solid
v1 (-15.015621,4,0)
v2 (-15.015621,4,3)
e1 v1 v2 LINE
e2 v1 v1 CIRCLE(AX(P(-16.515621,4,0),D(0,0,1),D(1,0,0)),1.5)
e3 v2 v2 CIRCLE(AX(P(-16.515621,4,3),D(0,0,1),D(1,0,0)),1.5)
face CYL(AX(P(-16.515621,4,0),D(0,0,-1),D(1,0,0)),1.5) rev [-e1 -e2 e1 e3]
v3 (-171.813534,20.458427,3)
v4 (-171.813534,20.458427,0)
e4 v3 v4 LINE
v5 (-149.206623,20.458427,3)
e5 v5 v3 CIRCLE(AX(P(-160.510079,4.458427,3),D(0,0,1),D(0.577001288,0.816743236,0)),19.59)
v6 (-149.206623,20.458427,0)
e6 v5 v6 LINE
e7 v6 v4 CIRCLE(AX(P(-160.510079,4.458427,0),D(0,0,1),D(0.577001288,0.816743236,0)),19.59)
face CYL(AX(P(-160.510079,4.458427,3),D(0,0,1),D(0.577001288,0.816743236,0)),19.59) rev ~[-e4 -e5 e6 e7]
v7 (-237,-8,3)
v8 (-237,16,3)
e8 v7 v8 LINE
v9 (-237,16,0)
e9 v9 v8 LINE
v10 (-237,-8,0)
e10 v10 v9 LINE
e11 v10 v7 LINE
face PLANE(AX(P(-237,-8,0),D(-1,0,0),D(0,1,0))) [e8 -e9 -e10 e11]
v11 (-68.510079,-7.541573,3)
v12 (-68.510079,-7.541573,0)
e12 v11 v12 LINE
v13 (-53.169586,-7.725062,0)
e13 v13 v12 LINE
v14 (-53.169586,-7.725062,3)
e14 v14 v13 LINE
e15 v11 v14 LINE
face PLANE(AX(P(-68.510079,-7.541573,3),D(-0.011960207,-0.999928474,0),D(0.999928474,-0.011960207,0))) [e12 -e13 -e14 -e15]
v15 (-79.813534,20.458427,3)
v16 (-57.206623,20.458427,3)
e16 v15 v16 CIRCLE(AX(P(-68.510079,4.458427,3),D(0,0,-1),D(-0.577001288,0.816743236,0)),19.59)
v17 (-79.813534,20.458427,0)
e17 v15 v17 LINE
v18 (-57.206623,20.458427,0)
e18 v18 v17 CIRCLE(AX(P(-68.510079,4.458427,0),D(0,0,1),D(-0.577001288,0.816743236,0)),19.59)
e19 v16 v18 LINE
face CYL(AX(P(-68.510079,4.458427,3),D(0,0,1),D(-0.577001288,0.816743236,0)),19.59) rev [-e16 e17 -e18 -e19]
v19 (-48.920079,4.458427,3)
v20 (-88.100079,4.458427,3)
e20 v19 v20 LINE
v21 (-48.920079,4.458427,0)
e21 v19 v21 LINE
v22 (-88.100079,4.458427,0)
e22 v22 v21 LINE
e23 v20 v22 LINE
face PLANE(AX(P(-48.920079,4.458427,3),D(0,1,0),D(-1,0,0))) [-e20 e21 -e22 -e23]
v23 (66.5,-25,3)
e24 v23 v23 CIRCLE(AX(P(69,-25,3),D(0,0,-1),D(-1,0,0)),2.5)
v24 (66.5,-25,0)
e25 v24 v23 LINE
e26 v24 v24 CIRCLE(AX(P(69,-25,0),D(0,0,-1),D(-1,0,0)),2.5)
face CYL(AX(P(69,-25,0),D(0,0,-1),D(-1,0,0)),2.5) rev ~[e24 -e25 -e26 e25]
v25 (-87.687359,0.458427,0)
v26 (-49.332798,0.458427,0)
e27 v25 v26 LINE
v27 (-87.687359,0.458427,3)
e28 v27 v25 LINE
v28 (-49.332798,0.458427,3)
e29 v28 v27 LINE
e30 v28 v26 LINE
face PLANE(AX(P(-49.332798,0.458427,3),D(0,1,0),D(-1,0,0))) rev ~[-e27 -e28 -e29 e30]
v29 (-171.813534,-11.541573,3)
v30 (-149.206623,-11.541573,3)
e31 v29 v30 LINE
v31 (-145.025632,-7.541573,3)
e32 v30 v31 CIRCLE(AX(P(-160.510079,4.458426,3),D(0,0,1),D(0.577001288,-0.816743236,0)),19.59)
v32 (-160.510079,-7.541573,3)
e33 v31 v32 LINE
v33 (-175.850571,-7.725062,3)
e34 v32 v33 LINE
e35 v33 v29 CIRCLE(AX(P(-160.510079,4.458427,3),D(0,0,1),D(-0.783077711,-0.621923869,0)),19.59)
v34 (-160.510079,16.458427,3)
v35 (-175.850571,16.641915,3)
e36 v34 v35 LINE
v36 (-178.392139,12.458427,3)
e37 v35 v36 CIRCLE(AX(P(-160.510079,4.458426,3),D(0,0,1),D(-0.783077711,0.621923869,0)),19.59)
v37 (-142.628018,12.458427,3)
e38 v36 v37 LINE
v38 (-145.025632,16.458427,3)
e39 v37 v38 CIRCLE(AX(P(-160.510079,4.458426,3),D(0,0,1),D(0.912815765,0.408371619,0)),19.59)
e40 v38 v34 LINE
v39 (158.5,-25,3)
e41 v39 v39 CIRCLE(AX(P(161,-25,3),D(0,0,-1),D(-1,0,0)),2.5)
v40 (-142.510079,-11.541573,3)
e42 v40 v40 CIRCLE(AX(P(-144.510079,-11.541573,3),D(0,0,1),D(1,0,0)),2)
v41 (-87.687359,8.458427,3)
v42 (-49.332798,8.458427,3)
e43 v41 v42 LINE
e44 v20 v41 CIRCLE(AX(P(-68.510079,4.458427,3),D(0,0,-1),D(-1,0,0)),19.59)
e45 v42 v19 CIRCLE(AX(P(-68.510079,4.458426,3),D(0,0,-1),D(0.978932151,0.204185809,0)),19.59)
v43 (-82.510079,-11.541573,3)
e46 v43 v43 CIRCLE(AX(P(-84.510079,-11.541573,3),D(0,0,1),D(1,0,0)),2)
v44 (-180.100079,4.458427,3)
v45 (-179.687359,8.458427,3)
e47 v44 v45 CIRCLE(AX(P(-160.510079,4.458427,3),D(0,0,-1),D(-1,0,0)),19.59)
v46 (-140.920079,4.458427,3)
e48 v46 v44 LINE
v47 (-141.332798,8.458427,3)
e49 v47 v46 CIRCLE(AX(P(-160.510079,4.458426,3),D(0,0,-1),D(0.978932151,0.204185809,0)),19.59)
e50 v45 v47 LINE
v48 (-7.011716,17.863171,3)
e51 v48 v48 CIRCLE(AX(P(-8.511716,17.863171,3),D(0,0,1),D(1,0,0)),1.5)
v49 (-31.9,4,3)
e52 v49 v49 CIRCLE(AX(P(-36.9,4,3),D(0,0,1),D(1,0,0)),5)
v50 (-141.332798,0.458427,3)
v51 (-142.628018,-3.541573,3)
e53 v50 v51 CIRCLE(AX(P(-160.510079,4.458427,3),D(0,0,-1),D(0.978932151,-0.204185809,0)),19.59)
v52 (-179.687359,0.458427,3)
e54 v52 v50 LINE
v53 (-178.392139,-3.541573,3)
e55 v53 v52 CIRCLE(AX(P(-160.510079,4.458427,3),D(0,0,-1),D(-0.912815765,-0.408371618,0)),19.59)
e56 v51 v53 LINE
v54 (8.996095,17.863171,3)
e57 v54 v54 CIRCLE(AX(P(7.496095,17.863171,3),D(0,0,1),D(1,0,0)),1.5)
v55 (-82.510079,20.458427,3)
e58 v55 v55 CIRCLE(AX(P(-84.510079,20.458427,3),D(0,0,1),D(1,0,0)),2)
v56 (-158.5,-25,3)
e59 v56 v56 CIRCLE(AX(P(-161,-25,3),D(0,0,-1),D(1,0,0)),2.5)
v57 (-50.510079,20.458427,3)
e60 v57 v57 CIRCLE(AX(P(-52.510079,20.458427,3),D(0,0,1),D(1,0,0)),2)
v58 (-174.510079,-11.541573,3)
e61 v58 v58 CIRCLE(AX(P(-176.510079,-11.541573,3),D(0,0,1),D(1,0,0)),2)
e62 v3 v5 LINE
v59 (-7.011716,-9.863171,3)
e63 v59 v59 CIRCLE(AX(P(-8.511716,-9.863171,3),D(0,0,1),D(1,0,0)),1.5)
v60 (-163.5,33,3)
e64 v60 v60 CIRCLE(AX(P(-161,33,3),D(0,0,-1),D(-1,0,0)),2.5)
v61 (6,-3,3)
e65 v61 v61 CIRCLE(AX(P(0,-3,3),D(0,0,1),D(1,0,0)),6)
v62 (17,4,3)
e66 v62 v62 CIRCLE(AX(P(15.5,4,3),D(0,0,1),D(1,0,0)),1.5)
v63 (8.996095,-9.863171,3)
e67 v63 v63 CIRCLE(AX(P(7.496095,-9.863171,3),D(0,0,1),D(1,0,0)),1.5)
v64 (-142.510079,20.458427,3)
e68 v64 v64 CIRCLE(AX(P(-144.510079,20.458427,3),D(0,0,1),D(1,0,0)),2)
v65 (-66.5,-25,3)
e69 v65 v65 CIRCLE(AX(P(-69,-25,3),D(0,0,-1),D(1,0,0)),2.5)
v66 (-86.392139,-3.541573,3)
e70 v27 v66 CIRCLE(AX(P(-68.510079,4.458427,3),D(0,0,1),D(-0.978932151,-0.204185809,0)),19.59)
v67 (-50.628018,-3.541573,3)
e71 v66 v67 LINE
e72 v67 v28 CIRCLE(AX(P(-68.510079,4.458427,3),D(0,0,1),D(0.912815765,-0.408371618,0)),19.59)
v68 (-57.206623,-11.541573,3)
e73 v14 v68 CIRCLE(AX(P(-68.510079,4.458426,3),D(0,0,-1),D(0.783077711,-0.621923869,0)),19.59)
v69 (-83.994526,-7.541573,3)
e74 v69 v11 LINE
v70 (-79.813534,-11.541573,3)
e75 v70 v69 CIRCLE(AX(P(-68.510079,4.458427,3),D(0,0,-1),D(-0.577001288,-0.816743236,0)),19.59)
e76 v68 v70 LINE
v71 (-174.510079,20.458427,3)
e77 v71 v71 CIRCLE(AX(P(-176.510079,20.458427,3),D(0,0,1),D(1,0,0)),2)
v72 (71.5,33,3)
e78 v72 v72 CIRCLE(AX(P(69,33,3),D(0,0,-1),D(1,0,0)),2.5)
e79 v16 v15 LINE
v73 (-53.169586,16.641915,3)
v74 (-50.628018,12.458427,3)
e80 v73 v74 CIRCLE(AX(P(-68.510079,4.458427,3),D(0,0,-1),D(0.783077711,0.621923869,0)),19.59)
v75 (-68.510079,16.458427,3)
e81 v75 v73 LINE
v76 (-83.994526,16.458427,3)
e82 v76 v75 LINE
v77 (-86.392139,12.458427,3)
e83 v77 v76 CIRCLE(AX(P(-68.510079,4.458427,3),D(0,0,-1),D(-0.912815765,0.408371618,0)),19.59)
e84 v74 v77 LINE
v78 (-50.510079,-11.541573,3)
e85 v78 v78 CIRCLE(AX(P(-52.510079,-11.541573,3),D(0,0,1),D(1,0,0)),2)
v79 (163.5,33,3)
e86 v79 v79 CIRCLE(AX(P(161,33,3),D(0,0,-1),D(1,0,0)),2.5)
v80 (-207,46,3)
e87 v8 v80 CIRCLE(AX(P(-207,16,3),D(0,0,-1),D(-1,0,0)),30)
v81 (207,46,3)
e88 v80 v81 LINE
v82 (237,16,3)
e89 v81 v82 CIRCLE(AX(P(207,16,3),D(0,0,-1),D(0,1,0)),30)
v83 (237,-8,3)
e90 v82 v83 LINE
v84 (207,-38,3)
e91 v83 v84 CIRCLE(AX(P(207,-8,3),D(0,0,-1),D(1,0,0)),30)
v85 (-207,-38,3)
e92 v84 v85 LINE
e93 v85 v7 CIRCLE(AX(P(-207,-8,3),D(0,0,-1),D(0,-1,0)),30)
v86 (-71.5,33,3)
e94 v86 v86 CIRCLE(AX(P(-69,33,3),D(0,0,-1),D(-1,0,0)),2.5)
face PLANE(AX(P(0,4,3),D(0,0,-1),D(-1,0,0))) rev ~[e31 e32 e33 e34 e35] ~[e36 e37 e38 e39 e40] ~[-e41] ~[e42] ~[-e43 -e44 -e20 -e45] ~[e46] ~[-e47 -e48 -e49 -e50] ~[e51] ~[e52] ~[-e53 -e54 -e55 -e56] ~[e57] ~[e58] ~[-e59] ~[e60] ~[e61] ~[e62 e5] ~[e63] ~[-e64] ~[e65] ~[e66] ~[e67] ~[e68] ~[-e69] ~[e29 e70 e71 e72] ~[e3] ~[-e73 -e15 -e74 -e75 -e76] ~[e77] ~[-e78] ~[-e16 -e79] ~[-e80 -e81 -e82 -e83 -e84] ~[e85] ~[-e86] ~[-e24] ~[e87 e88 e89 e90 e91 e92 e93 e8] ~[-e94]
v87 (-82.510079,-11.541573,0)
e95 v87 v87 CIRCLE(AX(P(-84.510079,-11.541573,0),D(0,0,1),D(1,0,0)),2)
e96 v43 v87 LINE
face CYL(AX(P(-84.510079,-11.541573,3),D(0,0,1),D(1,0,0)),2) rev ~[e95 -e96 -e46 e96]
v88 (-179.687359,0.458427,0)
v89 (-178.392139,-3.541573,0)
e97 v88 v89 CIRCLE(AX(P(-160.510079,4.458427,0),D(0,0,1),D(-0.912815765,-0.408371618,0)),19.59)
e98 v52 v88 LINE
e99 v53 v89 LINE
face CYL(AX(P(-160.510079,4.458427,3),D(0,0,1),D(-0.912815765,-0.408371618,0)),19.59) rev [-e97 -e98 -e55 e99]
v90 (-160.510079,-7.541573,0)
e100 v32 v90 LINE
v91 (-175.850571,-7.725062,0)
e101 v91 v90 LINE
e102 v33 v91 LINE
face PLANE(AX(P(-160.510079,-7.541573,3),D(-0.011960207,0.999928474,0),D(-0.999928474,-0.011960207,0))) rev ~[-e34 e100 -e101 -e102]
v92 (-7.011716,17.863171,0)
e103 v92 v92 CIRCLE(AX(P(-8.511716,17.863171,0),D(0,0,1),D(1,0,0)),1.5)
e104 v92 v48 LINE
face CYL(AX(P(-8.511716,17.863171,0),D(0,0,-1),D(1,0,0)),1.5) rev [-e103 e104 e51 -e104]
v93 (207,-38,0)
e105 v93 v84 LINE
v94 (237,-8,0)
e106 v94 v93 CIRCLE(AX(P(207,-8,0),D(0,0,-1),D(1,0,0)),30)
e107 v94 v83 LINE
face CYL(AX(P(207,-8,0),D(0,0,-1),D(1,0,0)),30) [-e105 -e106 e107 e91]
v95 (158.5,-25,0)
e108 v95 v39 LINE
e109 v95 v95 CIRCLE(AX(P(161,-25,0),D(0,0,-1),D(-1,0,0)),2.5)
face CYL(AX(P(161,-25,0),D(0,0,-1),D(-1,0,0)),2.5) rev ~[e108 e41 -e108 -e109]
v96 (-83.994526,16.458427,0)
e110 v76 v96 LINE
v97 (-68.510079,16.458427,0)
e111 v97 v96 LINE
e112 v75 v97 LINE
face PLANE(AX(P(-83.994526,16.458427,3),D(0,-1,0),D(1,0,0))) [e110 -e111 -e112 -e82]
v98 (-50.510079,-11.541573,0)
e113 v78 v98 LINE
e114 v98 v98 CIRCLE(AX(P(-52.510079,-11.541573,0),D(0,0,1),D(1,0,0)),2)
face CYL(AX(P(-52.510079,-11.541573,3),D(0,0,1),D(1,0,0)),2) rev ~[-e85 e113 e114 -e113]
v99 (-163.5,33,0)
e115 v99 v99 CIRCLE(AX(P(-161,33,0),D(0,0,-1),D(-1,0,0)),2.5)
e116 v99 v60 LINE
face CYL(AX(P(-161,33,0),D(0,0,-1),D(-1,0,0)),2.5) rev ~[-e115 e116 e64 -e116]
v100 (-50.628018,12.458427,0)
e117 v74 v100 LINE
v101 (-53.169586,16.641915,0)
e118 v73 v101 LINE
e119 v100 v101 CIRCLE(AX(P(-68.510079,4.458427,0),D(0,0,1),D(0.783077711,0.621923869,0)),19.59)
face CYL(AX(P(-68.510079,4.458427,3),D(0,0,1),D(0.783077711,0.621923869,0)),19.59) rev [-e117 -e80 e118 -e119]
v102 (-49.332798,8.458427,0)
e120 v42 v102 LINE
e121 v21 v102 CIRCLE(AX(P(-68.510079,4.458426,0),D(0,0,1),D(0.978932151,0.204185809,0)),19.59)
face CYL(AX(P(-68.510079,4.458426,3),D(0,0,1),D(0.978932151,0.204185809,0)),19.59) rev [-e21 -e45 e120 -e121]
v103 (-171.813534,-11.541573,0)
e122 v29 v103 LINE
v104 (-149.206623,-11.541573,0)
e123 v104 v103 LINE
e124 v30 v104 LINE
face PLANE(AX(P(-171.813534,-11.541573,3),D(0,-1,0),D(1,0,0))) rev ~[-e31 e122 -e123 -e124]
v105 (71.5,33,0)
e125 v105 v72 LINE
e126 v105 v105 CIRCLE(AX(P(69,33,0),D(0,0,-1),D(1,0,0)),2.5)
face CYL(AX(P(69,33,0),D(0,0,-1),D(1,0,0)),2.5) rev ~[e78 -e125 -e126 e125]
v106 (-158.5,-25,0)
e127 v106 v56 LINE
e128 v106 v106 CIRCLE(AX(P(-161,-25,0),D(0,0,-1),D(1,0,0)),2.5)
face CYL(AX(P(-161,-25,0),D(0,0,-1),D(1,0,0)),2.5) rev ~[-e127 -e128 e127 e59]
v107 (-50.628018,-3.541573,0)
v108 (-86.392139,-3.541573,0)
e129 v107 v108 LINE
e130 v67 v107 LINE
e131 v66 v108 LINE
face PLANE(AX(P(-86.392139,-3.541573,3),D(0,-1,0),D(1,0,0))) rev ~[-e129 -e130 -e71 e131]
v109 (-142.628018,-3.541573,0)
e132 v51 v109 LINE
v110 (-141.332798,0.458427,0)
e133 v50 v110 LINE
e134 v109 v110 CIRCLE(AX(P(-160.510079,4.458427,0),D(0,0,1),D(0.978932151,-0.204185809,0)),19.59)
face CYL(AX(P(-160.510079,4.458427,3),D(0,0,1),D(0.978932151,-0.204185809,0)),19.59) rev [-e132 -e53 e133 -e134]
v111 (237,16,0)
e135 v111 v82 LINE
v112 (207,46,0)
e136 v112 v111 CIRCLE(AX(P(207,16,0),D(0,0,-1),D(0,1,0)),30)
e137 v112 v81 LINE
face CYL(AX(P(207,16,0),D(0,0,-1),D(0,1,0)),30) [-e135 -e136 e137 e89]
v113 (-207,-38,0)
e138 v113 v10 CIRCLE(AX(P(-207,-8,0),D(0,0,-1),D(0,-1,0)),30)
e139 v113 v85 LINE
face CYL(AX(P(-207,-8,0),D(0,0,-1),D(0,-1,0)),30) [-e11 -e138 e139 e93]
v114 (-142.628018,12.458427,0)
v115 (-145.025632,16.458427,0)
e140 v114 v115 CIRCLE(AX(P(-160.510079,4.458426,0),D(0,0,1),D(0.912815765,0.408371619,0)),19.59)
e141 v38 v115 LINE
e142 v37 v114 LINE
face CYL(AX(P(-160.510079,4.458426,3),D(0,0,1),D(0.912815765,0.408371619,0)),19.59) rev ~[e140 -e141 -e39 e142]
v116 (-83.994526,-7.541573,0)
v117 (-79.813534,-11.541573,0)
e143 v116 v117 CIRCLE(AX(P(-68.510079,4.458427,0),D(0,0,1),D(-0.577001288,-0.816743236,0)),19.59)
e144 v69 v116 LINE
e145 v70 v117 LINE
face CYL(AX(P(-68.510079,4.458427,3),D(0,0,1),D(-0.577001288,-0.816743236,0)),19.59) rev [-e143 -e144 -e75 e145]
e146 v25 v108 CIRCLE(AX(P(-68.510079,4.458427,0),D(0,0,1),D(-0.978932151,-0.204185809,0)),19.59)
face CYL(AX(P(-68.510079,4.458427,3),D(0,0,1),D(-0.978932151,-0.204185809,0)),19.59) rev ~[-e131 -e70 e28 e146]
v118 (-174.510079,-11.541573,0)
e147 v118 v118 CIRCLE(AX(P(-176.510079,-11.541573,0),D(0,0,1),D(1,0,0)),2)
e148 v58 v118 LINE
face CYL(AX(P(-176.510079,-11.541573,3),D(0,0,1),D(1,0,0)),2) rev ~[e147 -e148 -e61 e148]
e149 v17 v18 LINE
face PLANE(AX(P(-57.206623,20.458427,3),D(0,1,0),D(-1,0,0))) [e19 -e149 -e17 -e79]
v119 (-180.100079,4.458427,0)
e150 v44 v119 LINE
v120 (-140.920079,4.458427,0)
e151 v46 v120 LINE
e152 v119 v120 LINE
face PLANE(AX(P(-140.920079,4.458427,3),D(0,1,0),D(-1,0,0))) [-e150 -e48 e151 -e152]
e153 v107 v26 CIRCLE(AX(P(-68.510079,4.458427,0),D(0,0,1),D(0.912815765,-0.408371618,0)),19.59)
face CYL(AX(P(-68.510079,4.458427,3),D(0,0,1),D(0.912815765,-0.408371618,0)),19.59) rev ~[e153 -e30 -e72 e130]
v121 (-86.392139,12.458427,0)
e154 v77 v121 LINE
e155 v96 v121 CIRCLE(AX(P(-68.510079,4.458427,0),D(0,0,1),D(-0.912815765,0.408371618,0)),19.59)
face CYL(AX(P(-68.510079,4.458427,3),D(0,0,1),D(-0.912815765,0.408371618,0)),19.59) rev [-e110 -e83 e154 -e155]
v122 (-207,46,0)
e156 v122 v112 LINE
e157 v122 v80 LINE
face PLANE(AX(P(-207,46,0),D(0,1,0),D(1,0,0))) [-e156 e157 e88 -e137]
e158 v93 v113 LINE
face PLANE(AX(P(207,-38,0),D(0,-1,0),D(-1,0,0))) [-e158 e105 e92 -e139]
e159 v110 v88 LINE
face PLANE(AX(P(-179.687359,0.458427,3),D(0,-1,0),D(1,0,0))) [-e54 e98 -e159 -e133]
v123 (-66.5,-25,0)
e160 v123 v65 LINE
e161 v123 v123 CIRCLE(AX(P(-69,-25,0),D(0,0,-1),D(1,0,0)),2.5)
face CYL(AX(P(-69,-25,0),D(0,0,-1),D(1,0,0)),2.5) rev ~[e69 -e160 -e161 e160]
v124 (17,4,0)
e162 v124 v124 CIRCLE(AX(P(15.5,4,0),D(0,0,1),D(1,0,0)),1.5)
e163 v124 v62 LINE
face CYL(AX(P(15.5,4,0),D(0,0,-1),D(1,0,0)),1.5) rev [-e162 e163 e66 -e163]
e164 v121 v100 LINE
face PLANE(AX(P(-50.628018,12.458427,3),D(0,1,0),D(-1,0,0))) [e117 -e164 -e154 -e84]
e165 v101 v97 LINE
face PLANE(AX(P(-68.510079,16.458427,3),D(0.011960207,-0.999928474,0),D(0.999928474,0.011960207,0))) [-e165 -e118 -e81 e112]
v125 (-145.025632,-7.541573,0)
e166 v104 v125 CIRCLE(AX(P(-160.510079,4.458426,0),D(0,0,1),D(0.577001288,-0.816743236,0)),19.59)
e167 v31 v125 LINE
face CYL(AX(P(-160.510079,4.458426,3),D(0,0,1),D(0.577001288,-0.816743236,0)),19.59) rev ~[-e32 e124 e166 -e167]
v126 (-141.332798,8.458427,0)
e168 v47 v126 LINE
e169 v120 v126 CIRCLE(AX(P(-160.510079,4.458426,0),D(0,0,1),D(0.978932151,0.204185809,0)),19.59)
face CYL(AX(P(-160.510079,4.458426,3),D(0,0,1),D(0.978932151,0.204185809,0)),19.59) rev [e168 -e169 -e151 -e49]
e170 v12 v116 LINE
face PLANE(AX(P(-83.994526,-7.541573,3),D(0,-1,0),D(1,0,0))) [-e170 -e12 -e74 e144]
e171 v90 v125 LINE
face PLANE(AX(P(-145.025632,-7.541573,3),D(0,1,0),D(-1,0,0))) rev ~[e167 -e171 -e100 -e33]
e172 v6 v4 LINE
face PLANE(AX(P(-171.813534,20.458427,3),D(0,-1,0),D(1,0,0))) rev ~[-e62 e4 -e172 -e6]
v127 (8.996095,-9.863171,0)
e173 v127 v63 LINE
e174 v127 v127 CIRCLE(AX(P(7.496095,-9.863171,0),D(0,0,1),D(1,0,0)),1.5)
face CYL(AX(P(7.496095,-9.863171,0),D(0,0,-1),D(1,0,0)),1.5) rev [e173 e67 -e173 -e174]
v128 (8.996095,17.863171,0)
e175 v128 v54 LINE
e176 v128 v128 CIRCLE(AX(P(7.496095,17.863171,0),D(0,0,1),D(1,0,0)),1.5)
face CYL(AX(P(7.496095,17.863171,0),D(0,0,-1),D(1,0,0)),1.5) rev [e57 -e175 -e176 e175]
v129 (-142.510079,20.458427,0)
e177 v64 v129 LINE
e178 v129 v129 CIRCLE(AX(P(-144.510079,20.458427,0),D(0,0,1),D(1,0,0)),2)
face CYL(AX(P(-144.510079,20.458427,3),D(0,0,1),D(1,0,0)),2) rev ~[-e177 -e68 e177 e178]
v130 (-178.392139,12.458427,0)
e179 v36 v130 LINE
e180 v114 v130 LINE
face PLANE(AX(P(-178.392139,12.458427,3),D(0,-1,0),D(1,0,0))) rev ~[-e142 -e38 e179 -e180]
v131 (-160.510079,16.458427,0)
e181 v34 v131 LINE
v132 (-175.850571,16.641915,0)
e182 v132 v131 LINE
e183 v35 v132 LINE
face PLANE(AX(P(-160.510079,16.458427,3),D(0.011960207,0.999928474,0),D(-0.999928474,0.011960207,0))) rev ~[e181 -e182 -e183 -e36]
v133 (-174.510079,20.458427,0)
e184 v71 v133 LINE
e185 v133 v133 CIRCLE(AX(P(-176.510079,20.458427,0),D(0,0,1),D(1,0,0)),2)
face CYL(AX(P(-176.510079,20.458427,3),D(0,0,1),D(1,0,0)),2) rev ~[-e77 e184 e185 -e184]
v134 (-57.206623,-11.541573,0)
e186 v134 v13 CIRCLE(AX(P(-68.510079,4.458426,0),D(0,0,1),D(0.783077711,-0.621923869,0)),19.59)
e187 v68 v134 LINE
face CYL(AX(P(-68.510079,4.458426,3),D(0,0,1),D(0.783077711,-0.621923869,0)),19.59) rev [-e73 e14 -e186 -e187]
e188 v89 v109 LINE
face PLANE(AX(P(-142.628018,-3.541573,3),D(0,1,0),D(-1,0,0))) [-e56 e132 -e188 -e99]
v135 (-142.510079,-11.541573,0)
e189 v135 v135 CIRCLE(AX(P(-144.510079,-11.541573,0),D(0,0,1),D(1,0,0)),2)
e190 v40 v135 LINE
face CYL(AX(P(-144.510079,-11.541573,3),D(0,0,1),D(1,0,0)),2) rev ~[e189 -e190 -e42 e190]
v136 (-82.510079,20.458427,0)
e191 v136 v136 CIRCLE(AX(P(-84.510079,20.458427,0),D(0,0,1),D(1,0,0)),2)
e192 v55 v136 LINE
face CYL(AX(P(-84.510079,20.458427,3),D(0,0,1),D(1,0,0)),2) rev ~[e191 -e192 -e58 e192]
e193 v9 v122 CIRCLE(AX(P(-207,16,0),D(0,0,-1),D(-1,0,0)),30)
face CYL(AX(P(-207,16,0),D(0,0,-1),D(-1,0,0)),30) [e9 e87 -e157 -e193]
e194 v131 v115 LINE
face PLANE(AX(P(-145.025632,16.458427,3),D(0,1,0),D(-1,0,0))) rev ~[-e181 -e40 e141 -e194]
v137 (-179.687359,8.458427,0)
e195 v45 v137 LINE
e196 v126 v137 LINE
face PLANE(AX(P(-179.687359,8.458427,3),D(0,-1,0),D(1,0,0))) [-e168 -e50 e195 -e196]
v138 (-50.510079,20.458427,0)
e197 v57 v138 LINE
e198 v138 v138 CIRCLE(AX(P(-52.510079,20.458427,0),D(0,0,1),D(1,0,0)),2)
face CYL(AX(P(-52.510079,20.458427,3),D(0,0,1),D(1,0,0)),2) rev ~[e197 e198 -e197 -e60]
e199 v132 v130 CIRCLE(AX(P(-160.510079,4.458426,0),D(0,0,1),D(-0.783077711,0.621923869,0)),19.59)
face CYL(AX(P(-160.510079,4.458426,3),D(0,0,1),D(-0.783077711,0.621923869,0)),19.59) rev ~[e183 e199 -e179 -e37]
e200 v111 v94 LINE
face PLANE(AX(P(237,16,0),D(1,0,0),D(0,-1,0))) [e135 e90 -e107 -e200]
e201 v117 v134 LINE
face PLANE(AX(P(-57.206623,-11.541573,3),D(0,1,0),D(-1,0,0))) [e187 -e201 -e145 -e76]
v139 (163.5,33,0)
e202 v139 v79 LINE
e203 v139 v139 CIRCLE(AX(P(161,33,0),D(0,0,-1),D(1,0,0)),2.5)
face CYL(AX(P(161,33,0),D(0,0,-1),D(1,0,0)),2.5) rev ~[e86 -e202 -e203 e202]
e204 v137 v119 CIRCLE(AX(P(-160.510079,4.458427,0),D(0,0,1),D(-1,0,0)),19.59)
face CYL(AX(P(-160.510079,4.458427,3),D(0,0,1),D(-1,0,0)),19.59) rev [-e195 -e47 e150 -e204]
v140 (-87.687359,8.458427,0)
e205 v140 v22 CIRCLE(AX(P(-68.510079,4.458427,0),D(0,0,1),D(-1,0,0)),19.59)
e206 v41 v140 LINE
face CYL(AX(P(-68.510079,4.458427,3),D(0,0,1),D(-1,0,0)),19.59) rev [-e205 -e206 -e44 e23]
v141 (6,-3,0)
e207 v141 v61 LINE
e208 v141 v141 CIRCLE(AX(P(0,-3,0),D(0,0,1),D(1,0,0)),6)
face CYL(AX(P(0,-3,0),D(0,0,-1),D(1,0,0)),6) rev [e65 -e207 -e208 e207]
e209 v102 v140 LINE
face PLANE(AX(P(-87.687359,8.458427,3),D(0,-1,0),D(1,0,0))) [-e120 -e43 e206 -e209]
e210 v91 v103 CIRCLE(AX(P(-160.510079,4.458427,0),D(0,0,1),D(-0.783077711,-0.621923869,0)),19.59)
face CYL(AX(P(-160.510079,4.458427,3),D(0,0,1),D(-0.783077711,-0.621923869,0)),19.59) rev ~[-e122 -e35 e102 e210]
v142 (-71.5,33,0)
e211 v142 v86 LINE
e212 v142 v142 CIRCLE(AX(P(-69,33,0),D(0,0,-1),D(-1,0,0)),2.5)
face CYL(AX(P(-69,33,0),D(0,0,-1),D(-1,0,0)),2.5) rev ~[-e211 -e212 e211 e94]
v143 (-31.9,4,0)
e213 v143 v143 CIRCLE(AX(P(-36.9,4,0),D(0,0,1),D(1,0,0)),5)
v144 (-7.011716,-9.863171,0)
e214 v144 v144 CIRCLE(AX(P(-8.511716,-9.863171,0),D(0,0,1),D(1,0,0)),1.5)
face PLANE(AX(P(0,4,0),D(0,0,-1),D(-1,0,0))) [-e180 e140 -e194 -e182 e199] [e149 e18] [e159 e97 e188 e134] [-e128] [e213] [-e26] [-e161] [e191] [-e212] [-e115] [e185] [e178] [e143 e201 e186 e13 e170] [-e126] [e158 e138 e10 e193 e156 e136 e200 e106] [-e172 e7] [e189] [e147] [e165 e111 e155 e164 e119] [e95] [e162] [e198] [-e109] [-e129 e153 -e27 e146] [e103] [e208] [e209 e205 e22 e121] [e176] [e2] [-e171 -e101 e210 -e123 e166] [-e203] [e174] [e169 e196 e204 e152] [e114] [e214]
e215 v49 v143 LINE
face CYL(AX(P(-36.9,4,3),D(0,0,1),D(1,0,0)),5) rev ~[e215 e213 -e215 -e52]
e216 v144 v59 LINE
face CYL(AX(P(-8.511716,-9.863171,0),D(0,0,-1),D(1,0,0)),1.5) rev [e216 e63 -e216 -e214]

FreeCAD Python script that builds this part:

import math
import FreeCAD as App
import Part
import Sketcher

V = App.Vector
Q = App.Units.Quantity

doc = App.newDocument("Part")
body = doc.addObject("PartDesign::Body", "Body")

# Sketch on XY plane
sketch1 = body.newObject("Sketcher::SketchObject", "Sketch")
sketch1.AttachmentSupport = (doc.getObject("XY_Plane"), [""])
sketch1.MapMode = "FlatFace"
sketch1.addGeometry(Part.LineSegment(V(-207, -38, 0), V(207, -38, 0)), False)
sketch1.addGeometry(Part.ArcOfCircle(Part.Circle(V(207, -8, 0), V(0, 0, 1), 30), math.radians(-90), math.radians(0)), False)
sketch1.addGeometry(Part.LineSegment(V(237, -8, 0), V(237, 16, 0)), False)
sketch1.addGeometry(Part.ArcOfCircle(Part.Circle(V(207, 16, 0), V(0, 0, 1), 30), math.radians(0), math.radians(90)), False)
sketch1.addGeometry(Part.LineSegment(V(207, 46, 0), V(-207, 46, 0)), False)
sketch1.addGeometry(Part.ArcOfCircle(Part.Circle(V(-207, 16, 0), V(0, 0, 1), 30), math.radians(90), math.radians(180)), False)
sketch1.addGeometry(Part.LineSegment(V(-237, 16, 0), V(-237, -8, 0)), False)
sketch1.addGeometry(Part.ArcOfCircle(Part.Circle(V(-207, -8, 0), V(0, 0, 1), 30), math.radians(180), math.radians(270)), False)
sketch1.addGeometry(Part.Circle(V(7.5, -9.9, 0), V(0, 0, 1), 1.5), False)
sketch1.addGeometry(Part.Circle(V(0, -3, 0), V(0, 0, 1), 6), False)
sketch1.addGeometry(Part.Circle(V(-8.5, -9.9, 0), V(0, 0, 1), 1.5), False)
sketch1.addGeometry(Part.Circle(V(15.5, 4, 0), V(0, 0, 1), 1.5), False)
sketch1.addGeometry(Part.Circle(V(7.5, 17.9, 0), V(0, 0, 1), 1.5), False)
sketch1.addGeometry(Part.Circle(V(-16.5, 4, 0), V(0, 0, 1), 1.5), False)
sketch1.addGeometry(Part.Circle(V(-8.5, 17.9, 0), V(0, 0, 1), 1.5), False)
sketch1.addConstraint(Sketcher.Constraint("Tangent", 0, 2, 1, 1))
sketch1.addConstraint(Sketcher.Constraint("Tangent", 1, 2, 2, 1))
sketch1.addConstraint(Sketcher.Constraint("Tangent", 2, 2, 3, 1))
sketch1.addConstraint(Sketcher.Constraint("Tangent", 3, 2, 4, 1))
sketch1.addConstraint(Sketcher.Constraint("Tangent", 4, 2, 5, 1))
sketch1.addConstraint(Sketcher.Constraint("Tangent", 5, 2, 6, 1))
sketch1.addConstraint(Sketcher.Constraint("Tangent", 6, 2, 7, 1))
sketch1.addConstraint(Sketcher.Constraint("Tangent", 7, 2, 0, 1))
sketch1.addConstraint(Sketcher.Constraint("Horizontal", 0))
sketch1.addConstraint(Sketcher.Constraint("Vertical", 2))
sketch1.addConstraint(Sketcher.Constraint("Horizontal", 4))
sketch1.addConstraint(Sketcher.Constraint("Vertical", 6))
sketch1.addConstraint(Sketcher.Constraint("Equal", 1, 3))
sketch1.addConstraint(Sketcher.Constraint("Equal", 3, 5))
sketch1.addConstraint(Sketcher.Constraint("Equal", 5, 7))
sketch1.addConstraint(Sketcher.Constraint("Equal", 8, 10))
sketch1.addConstraint(Sketcher.Constraint("Equal", 10, 11))
sketch1.addConstraint(Sketcher.Constraint("Equal", 11, 12))
sketch1.addConstraint(Sketcher.Constraint("Equal", 12, 13))
sketch1.addConstraint(Sketcher.Constraint("Equal", 13, 14))
sketch1.addConstraint(Sketcher.Constraint("PointOnObject", 9, 3, -2))
sketch1.addConstraint(Sketcher.Constraint("Horizontal", 8, 3, 10, 3))
sketch1.addConstraint(Sketcher.Constraint("Horizontal", 11, 3, 13, 3))
sketch1.addConstraint(Sketcher.Constraint("Horizontal", 12, 3, 14, 3))
sketch1.addConstraint(Sketcher.Constraint("Vertical", 8, 3, 12, 3))
sketch1.addConstraint(Sketcher.Constraint("Vertical", 10, 3, 14, 3))
sketch1.addConstraint(Sketcher.Constraint("Diameter", 8, Q("3 mm")))
sketch1.addConstraint(Sketcher.Constraint("Diameter", 9, Q("12 mm")))
sketch1.addConstraint(Sketcher.Constraint("Radius", 1, Q("30 mm")))
sketch1.addConstraint(Sketcher.Constraint("DistanceX", 0, 1, 0, 2, Q("414 mm")))
sketch1.addConstraint(Sketcher.Constraint("DistanceY", 2, 1, 2, 2, Q("24 mm")))
sketch1.addConstraint(Sketcher.Constraint("DistanceX", -1, 1, 1, 3, Q("207 mm")))
sketch1.addConstraint(Sketcher.Constraint("DistanceY", 1, 3, -1, 1, Q("8 mm")))
sketch1.addConstraint(Sketcher.Constraint("DistanceY", 9, 3, -1, 1, Q("3 mm")))
sketch1.addConstraint(Sketcher.Constraint("DistanceY", -1, 1, 11, 3, Q("4 mm")))
sketch1.addConstraint(Sketcher.Constraint("DistanceX", -1, 1, 11, 3, Q("15.5 mm")))
sketch1.addConstraint(Sketcher.Constraint("DistanceY", 8, 3, -1, 1, Q("9.863171 mm")))
sketch1.addConstraint(Sketcher.Constraint("DistanceY", -1, 1, 12, 3, Q("17.863171 mm")))
sketch1.addConstraint(Sketcher.Constraint("DistanceX", 13, 3, -1, 1, Q("16.515621 mm")))
sketch1.addConstraint(Sketcher.Constraint("DistanceX", 10, 3, 8, 3, Q("16.007811 mm")))
sketch1.addConstraint(Sketcher.Constraint("DistanceX", -1, 1, 8, 3, Q("7.496095 mm")))
pad1 = body.newObject("PartDesign::Pad", "Pad")
pad1.Profile = sketch1
pad1.Length = 3

# Sketch on XY plane
sketch2 = body.newObject("Sketcher::SketchObject", "Sketch001")
sketch2.AttachmentSupport = (doc.getObject("XY_Plane"), [""])
sketch2.MapMode = "FlatFace"
sketch2.AttachmentOffset = App.Placement(V(0, 0, 3), App.Rotation())
sketch2.addGeometry(Part.Circle(V(-176.5, 20.5, 0), V(0, 0, 1), 2), False)
sketch2.addGeometry(Part.Circle(V(-144.5, 20.5, 0), V(0, 0, 1), 2), False)
sketch2.addGeometry(Part.Circle(V(-176.5, -11.5, 0), V(0, 0, 1), 2), False)
sketch2.addGeometry(Part.Circle(V(-144.5, -11.5, 0), V(0, 0, 1), 2), False)
sketch2.addGeometry(Part.Circle(V(-84.5, -11.5, 0), V(0, 0, 1), 2), False)
sketch2.addGeometry(Part.Circle(V(-52.5, -11.5, 0), V(0, 0, 1), 2), False)
sketch2.addGeometry(Part.Circle(V(-84.5, 20.5, 0), V(0, 0, 1), 2), False)
sketch2.addGeometry(Part.Circle(V(-52.5, 20.5, 0), V(0, 0, 1), 2), False)
sketch2.addGeometry(Part.LineSegment(V(-171.8, -11.5, 0), V(-149.2, -11.5, 0)), False)
sketch2.addGeometry(Part.ArcOfCircle(Part.Circle(V(-160.5, 4.5, 0), V(0, 0, 1), 19.6), math.radians(-54.76), math.radians(-37.77)), False)
sketch2.addGeometry(Part.LineSegment(V(-145, -7.5, 0), V(-160.5, -7.5, 0)), False)
sketch2.addGeometry(Part.LineSegment(V(-160.5, -7.5, 0), V(-175.9, -7.7, 0)), False)
sketch2.addGeometry(Part.ArcOfCircle(Part.Circle(V(-160.5, 4.5, 0), V(0, 0, 1), 19.6), math.radians(-141.54), math.radians(-125.24)), False)
sketch2.addGeometry(Part.ArcOfCircle(Part.Circle(V(-160.5, 4.5, 0), V(0, 0, 1), 19.6), math.radians(0), math.radians(11.78)), False)
sketch2.addGeometry(Part.LineSegment(V(-141.3, 8.5, 0), V(-179.7, 8.5, 0)), False)
sketch2.addGeometry(Part.ArcOfCircle(Part.Circle(V(-160.5, 4.5, 0), V(0, 0, 1), 19.6), math.radians(168.22), math.radians(180)), False)
sketch2.addGeometry(Part.LineSegment(V(-180.1, 4.5, 0), V(-140.9, 4.5, 0)), False)
sketch2.addGeometry(Part.ArcOfCircle(Part.Circle(V(-160.5, 4.5, 0), V(0, 0, 1), 19.6), math.radians(24.1), math.radians(37.77)), False)
sketch2.addGeometry(Part.LineSegment(V(-145, 16.5, 0), V(-160.5, 16.5, 0)), False)
sketch2.addGeometry(Part.LineSegment(V(-160.5, 16.5, 0), V(-175.9, 16.6, 0)), False)
sketch2.addGeometry(Part.ArcOfCircle(Part.Circle(V(-160.5, 4.5, 0), V(0, 0, 1), 19.6), math.radians(141.54), math.radians(155.9)), False)
sketch2.addGeometry(Part.LineSegment(V(-178.4, 12.5, 0), V(-142.6, 12.5, 0)), False)
sketch2.addGeometry(Part.ArcOfCircle(Part.Circle(V(-160.5, 4.5, 0), V(0, 0, 1), 19.6), math.radians(-24.1), math.radians(-11.78)), False)
sketch2.addGeometry(Part.LineSegment(V(-141.3, 0.5, 0), V(-179.7, 0.5, 0)), False)
sketch2.addGeometry(Part.ArcOfCircle(Part.Circle(V(-160.5, 4.5, 0), V(0, 0, 1), 19.6), math.radians(-168.22), math.radians(-155.9)), False)
sketch2.addGeometry(Part.LineSegment(V(-178.4, -3.5, 0), V(-142.6, -3.5, 0)), False)
sketch2.addGeometry(Part.LineSegment(V(-171.8, 20.5, 0), V(-149.2, 20.5, 0)), False)
sketch2.addGeometry(Part.ArcOfCircle(Part.Circle(V(-160.5, 4.5, 0), V(0, 0, 1), 19.6), math.radians(55), math.radians(125)), False)
sketch2.addGeometry(Part.LineSegment(V(-79.8, 20.5, 0), V(-57.2, 20.5, 0)), False)
sketch2.addGeometry(Part.ArcOfCircle(Part.Circle(V(-68.5, 4.5, 0), V(0, 0, 1), 19.6), math.radians(55), math.radians(125)), False)
sketch2.addGeometry(Part.LineSegment(V(-53.2, -7.7, 0), V(-68.5, -7.5, 0)), False)
sketch2.addGeometry(Part.LineSegment(V(-68.5, -7.5, 0), V(-84, -7.5, 0)), False)
sketch2.addGeometry(Part.ArcOfCircle(Part.Circle(V(-68.5, 4.5, 0), V(0, 0, 1), 19.6), math.radians(-142.23), math.radians(-125.24)), False)
sketch2.addGeometry(Part.LineSegment(V(-79.8, -11.5, 0), V(-57.2, -11.5, 0)), False)
sketch2.addGeometry(Part.ArcOfCircle(Part.Circle(V(-68.5, 4.5, 0), V(0, 0, 1), 19.6), math.radians(-54.76), math.radians(-38.46)), False)
sketch2.addGeometry(Part.ArcOfCircle(Part.Circle(V(-68.5, 4.5, 0), V(0, 0, 1), 19.6), math.radians(-24.1), math.radians(-11.78)), False)
sketch2.addGeometry(Part.LineSegment(V(-49.3, 0.5, 0), V(-87.7, 0.5, 0)), False)
sketch2.addGeometry(Part.ArcOfCircle(Part.Circle(V(-68.5, 4.5, 0), V(0, 0, 1), 19.6), math.radians(-168.22), math.radians(-155.9)), False)
sketch2.addGeometry(Part.LineSegment(V(-86.4, -3.5, 0), V(-50.6, -3.5, 0)), False)
sketch2.addGeometry(Part.LineSegment(V(-53.2, 16.6, 0), V(-68.5, 16.5, 0)), False)
sketch2.addGeometry(Part.LineSegment(V(-68.5, 16.5, 0), V(-84, 16.5, 0)), False)
sketch2.addGeometry(Part.ArcOfCircle(Part.Circle(V(-68.5, 4.5, 0), V(0, 0, 1), 19.6), math.radians(142.23), math.radians(155.9)), False)
sketch2.addGeometry(Part.LineSegment(V(-86.4, 12.5, 0), V(-50.6, 12.5, 0)), False)
sketch2.addGeometry(Part.ArcOfCircle(Part.Circle(V(-68.5, 4.5, 0), V(0, 0, 1), 19.6), math.radians(24.1), math.radians(38.46)), False)
sketch2.addGeometry(Part.ArcOfCircle(Part.Circle(V(-68.5, 4.5, 0), V(0, 0, 1), 19.6), math.radians(0), math.radians(11.78)), False)
sketch2.addGeometry(Part.LineSegment(V(-49.3, 8.5, 0), V(-87.7, 8.5, 0)), False)
sketch2.addGeometry(Part.ArcOfCircle(Part.Circle(V(-68.5, 4.5, 0), V(0, 0, 1), 19.6), math.radians(168.22), math.radians(180)), False)
sketch2.addGeometry(Part.LineSegment(V(-88.1, 4.5, 0), V(-48.9, 4.5, 0)), False)
sketch2.addConstraint(Sketcher.Constraint("Coincident", 8, 2, 9, 1))
sketch2.addConstraint(Sketcher.Constraint("Coincident", 9, 2, 10, 1))
sketch2.addConstraint(Sketcher.Constraint("Coincident", 10, 2, 11, 1))
sketch2.addConstraint(Sketcher.Constraint("Coincident", 11, 2, 12, 1))
sketch2.addConstraint(Sketcher.Constraint("Coincident", 12, 2, 8, 1))
sketch2.addConstraint(Sketcher.Constraint("Coincident", 13, 2, 14, 1))
sketch2.addConstraint(Sketcher.Constraint("Coincident", 14, 2, 15, 1))
sketch2.addConstraint(Sketcher.Constraint("Coincident", 15, 2, 16, 1))
sketch2.addConstraint(Sketcher.Constraint("Coincident", 16, 2, 13, 1))
sketch2.addConstraint(Sketcher.Constraint("Coincident", 17, 2, 18, 1))
sketch2.addConstraint(Sketcher.Constraint("Coincident", 18, 2, 19, 1))
sketch2.addConstraint(Sketcher.Constraint("Coincident", 19, 2, 20, 1))
sketch2.addConstraint(Sketcher.Constraint("Coincident", 20, 2, 21, 1))
sketch2.addConstraint(Sketcher.Constraint("Coincident", 21, 2, 17, 1))
sketch2.addConstraint(Sketcher.Constraint("Coincident", 22, 2, 23, 1))
sketch2.addConstraint(Sketcher.Constraint("Coincident", 23, 2, 24, 1))
sketch2.addConstraint(Sketcher.Constraint("Coincident", 24, 2, 25, 1))
sketch2.addConstraint(Sketcher.Constraint("Coincident", 25, 2, 22, 1))
sketch2.addConstraint(Sketcher.Constraint("Coincident", 26, 1, 27, 2))
sketch2.addConstraint(Sketcher.Constraint("Coincident", 27, 1, 26, 2))
sketch2.addConstraint(Sketcher.Constraint("Coincident", 28, 1, 29, 2))
sketch2.addConstraint(Sketcher.Constraint("Coincident", 29, 1, 28, 2))
sketch2.addConstraint(Sketcher.Constraint("Coincident", 30, 2, 31, 1))
sketch2.addConstraint(Sketcher.Constraint("Coincident", 31, 2, 32, 1))
sketch2.addConstraint(Sketcher.Constraint("Coincident", 32, 2, 33, 1))
sketch2.addConstraint(Sketcher.Constraint("Coincident", 33, 2, 34, 1))
sketch2.addConstraint(Sketcher.Constraint("Coincident", 34, 2, 30, 1))
sketch2.addConstraint(Sketcher.Constraint("Coincident", 35, 2, 36, 1))
sketch2.addConstraint(Sketcher.Constraint("Coincident", 36, 2, 37, 1))
sketch2.addConstraint(Sketcher.Constraint("Coincident", 37, 2, 38, 1))
sketch2.addConstraint(Sketcher.Constraint("Coincident", 38, 2, 35, 1))
sketch2.addConstraint(Sketcher.Constraint("Coincident", 39, 2, 40, 1))
sketch2.addConstraint(Sketcher.Constraint("Coincident", 40, 2, 41, 1))
sketch2.addConstraint(Sketcher.Constraint("Coincident", 41, 2, 42, 1))
sketch2.addConstraint(Sketcher.Constraint("Coincident", 42, 2, 43, 1))
sketch2.addConstraint(Sketcher.Constraint("Coincident", 43, 2, 39, 1))
sketch2.addConstraint(Sketcher.Constraint("Coincident", 44, 2, 45, 1))
sketch2.addConstraint(Sketcher.Constraint("Coincident", 45, 2, 46, 1))
sketch2.addConstraint(Sketcher.Constraint("Coincident", 46, 2, 47, 1))
sketch2.addConstraint(Sketcher.Constraint("Coincident", 47, 2, 44, 1))
sketch2.addConstraint(Sketcher.Constraint("Horizontal", 8))
sketch2.addConstraint(Sketcher.Constraint("Horizontal", 10))
sketch2.addConstraint(Sketcher.Constraint("Horizontal", 14))
sketch2.addConstraint(Sketcher.Constraint("Horizontal", 16))
sketch2.addConstraint(Sketcher.Constraint("Horizontal", 18))
sketch2.addConstraint(Sketcher.Constraint("Horizontal", 21))
sketch2.addConstraint(Sketcher.Constraint("Horizontal", 23))
sketch2.addConstraint(Sketcher.Constraint("Horizontal", 25))
sketch2.addConstraint(Sketcher.Constraint("Horizontal", 26))
sketch2.addConstraint(Sketcher.Constraint("Horizontal", 28))
sketch2.addConstraint(Sketcher.Constraint("Horizontal", 31))
sketch2.addConstraint(Sketcher.Constraint("Horizontal", 33))
sketch2.addConstraint(Sketcher.Constraint("Horizontal", 36))
sketch2.addConstraint(Sketcher.Constraint("Horizontal", 38))
sketch2.addConstraint(Sketcher.Constraint("Horizontal", 40))
sketch2.addConstraint(Sketcher.Constraint("Horizontal", 42))
sketch2.addConstraint(Sketcher.Constraint("Horizontal", 45))
sketch2.addConstraint(Sketcher.Constraint("Horizontal", 47))
sketch2.addConstraint(Sketcher.Constraint("Coincident", 12, 3, 9, 3))
sketch2.addConstraint(Sketcher.Constraint("Coincident", 13, 3, 9, 3))
sketch2.addConstraint(Sketcher.Constraint("Coincident", 15, 3, 9, 3))
sketch2.addConstraint(Sketcher.Constraint("Coincident", 17, 3, 9, 3))
sketch2.addConstraint(Sketcher.Constraint("Coincident", 20, 3, 9, 3))
sketch2.addConstraint(Sketcher.Constraint("Coincident", 22, 3, 9, 3))
sketch2.addConstraint(Sketcher.Constraint("Coincident", 24, 3, 9, 3))
sketch2.addConstraint(Sketcher.Constraint("Coincident", 27, 3, 9, 3))
sketch2.addConstraint(Sketcher.Constraint("Coincident", 32, 3, 29, 3))
sketch2.addConstraint(Sketcher.Constraint("Coincident", 34, 3, 29, 3))
sketch2.addConstraint(Sketcher.Constraint("Coincident", 35, 3, 29, 3))
sketch2.addConstraint(Sketcher.Constraint("Coincident", 37, 3, 29, 3))
sketch2.addConstraint(Sketcher.Constraint("Coincident", 41, 3, 29, 3))
sketch2.addConstraint(Sketcher.Constraint("Coincident", 43, 3, 29, 3))
sketch2.addConstraint(Sketcher.Constraint("Coincident", 44, 3, 29, 3))
sketch2.addConstraint(Sketcher.Constraint("Coincident", 46, 3, 29, 3))
sketch2.addConstraint(Sketcher.Constraint("Equal", 0, 1))
sketch2.addConstraint(Sketcher.Constraint("Equal", 1, 2))
sketch2.addConstraint(Sketcher.Constraint("Equal", 2, 3))
sketch2.addConstraint(Sketcher.Constraint("Equal", 3, 4))
sketch2.addConstraint(Sketcher.Constraint("Equal", 4, 5))
sketch2.addConstraint(Sketcher.Constraint("Equal", 5, 6))
sketch2.addConstraint(Sketcher.Constraint("Equal", 6, 7))
sketch2.addConstraint(Sketcher.Constraint("Equal", 9, 12))
sketch2.addConstraint(Sketcher.Constraint("Equal", 12, 13))
sketch2.addConstraint(Sketcher.Constraint("Equal", 13, 15))
sketch2.addConstraint(Sketcher.Constraint("Equal", 15, 17))
sketch2.addConstraint(Sketcher.Constraint("Equal", 17, 20))
sketch2.addConstraint(Sketcher.Constraint("Equal", 20, 22))
sketch2.addConstraint(Sketcher.Constraint("Equal", 22, 24))
sketch2.addConstraint(Sketcher.Constraint("Equal", 24, 27))
sketch2.addConstraint(Sketcher.Constraint("Equal", 27, 29))
sketch2.addConstraint(Sketcher.Constraint("Equal", 29, 32))
sketch2.addConstraint(Sketcher.Constraint("Equal", 32, 34))
sketch2.addConstraint(Sketcher.Constraint("Equal", 34, 35))
sketch2.addConstraint(Sketcher.Constraint("Equal", 35, 37))
sketch2.addConstraint(Sketcher.Constraint("Equal", 37, 41))
sketch2.addConstraint(Sketcher.Constraint("Equal", 41, 43))
sketch2.addConstraint(Sketcher.Constraint("Equal", 43, 44))
sketch2.addConstraint(Sketcher.Constraint("Equal", 44, 46))
sketch2.addConstraint(Sketcher.Constraint("Parallel", 19, 30))
sketch2.addConstraint(Sketcher.Constraint("Parallel", 11, 39))
sketch2.addConstraint(Sketcher.Constraint("Horizontal", 0, 3, 1, 3))
sketch2.addConstraint(Sketcher.Constraint("Horizontal", 2, 3, 3, 3))
sketch2.addConstraint(Sketcher.Constraint("Horizontal", 3, 3, 4, 3))
sketch2.addConstraint(Sketcher.Constraint("Horizontal", 4, 3, 5, 3))
sketch2.addConstraint(Sketcher.Constraint("Horizontal", 1, 3, 6, 3))
sketch2.addConstraint(Sketcher.Constraint("Horizontal", 6, 3, 7, 3))
sketch2.addConstraint(Sketcher.Constraint("Horizontal", 27, 3, 29, 3))
sketch2.addConstraint(Sketcher.Constraint("Horizontal", 5, 3, 8, 2))
sketch2.addConstraint(Sketcher.Constraint("Horizontal", 46, 3, 15, 2))
sketch2.addConstraint(Sketcher.Constraint("Horizontal", 7, 3, 26, 1))
sketch2.addConstraint(Sketcher.Constraint("Horizontal", 27, 1, 28, 1))
sketch2.addConstraint(Sketcher.Constraint("Horizontal", 10, 2, 30, 2))
sketch2.addConstraint(Sketcher.Constraint("Horizontal", 12, 2, 32, 2))
sketch2.addConstraint(Sketcher.Constraint("Horizontal", 11, 2, 34, 2))
sketch2.addConstraint(Sketcher.Constraint("Horizontal", 23, 2, 35, 2))
sketch2.addConstraint(Sketcher.Constraint("Horizontal", 25, 2, 37, 2))
sketch2.addConstraint(Sketcher.Constraint("Horizontal", 18, 2, 39, 2))
sketch2.addConstraint(Sketcher.Constraint("Horizontal", 21, 2, 41, 2))
sketch2.addConstraint(Sketcher.Constraint("Horizontal", 14, 2, 44, 2))
sketch2.addConstraint(Sketcher.Constraint("Horizontal", 16, 2, 46, 2))
sketch2.addConstraint(Sketcher.Constraint("Vertical", 0, 3, 2, 3))
sketch2.addConstraint(Sketcher.Constraint("Vertical", 1, 3, 3, 3))
sketch2.addConstraint(Sketcher.Constraint("Vertical", 4, 3, 6, 3))
sketch2.addConstraint(Sketcher.Constraint("Vertical", 5, 3, 7, 3))
sketch2.addConstraint(Sketcher.Constraint("Vertical", 27, 3, 10, 2))
sketch2.addConstraint(Sketcher.Constraint("Vertical", 9, 2, 17, 2))
sketch2.addConstraint(Sketcher.Constraint("Vertical", 10, 2, 18, 2))
sketch2.addConstraint(Sketcher.Constraint("Vertical", 11, 2, 19, 2))
sketch2.addConstraint(Sketcher.Constraint("Vertical", 13, 2, 22, 2))
sketch2.addConstraint(Sketcher.Constraint("Vertical", 20, 2, 24, 2))
sketch2.addConstraint(Sketcher.Constraint("Vertical", 12, 2, 26, 1))
sketch2.addConstraint(Sketcher.Constraint("Vertical", 30, 2, 39, 2))
sketch2.addConstraint(Sketcher.Constraint("Diameter", 0, Q("4 mm")))
sketch2.addConstraint(Sketcher.Constraint("Radius", 9, Q("19.59 mm")))
sketch2.addConstraint(Sketcher.Constraint("DistanceX", 8, 1, 8, 2, Q("22.60691 mm")))
sketch2.addConstraint(Sketcher.Constraint("DistanceX", 14, 2, 14, 1, Q("38.354562 mm")))
sketch2.addConstraint(Sketcher.Constraint("DistanceX", 21, 1, 21, 2, Q("35.764122 mm")))
sketch2.addConstraint(Sketcher.Constraint("Distance", 11, Q("15.34159 mm")))
sketch2.addConstraint(Sketcher.Constraint("DistanceX", 10, 2, 10, 1, Q("15.484447 mm")))
sketch2.addConstraint(Sketcher.Constraint("DistanceX", 0, 3, -1, 1, Q("176.510079 mm")))
sketch2.addConstraint(Sketcher.Constraint("DistanceX", 1, 3, -1, 1, Q("144.510079 mm")))
sketch2.addConstraint(Sketcher.Constraint("DistanceX", 4, 3, -1, 1, Q("84.510079 mm")))
sketch2.addConstraint(Sketcher.Constraint("DistanceX", 5, 3, -1, 1, Q("52.510079 mm")))
sketch2.addConstraint(Sketcher.Constraint("DistanceX", 9, 3, -1, 1, Q("160.510079 mm")))
sketch2.addConstraint(Sketcher.Constraint("DistanceX", 29, 3, -1, 1, Q("68.510079 mm")))
sketch2.addConstraint(Sketcher.Constraint("DistanceY", -1, 1, 0, 3, Q("20.458427 mm")))
pocket1 = body.newObject("PartDesign::Pocket", "Pocket")
pocket1.Profile = sketch2
pocket1.Length = 10

# Sketch on XY plane
sketch3 = body.newObject("Sketcher::SketchObject", "Sketch002")
sketch3.AttachmentSupport = (doc.getObject("XY_Plane"), [""])
sketch3.MapMode = "FlatFace"
sketch3.AttachmentOffset = App.Placement(V(0, 0, 3), App.Rotation())
sketch3.addGeometry(Part.Circle(V(-37, 4, 0), V(0, 0, 1), 5), False)
sketch3.addConstraint(Sketcher.Constraint("Diameter", 0, Q("10 mm")))
sketch3.addConstraint(Sketcher.Constraint("DistanceY", -1, 1, 0, 3, Q("4 mm")))
sketch3.addConstraint(Sketcher.Constraint("DistanceX", 0, 3, -1, 1, Q("36.9 mm")))
pocket2 = body.newObject("PartDesign::Pocket", "Pocket001")
pocket2.Profile = sketch3
pocket2.Length = 5

# Sketch on XY plane
sketch4 = body.newObject("Sketcher::SketchObject", "Sketch003")
sketch4.AttachmentSupport = (doc.getObject("XY_Plane"), [""])
sketch4.MapMode = "FlatFace"
sketch4.addGeometry(Part.Circle(V(-69, 33, 0), V(0, 0, 1), 2.5), False)
sketch4.addGeometry(Part.Circle(V(-161, 33, 0), V(0, 0, 1), 2.5), False)
sketch4.addGeometry(Part.Circle(V(-161, -25, 0), V(0, 0, 1), 2.5), False)
sketch4.addGeometry(Part.Circle(V(-69, -25, 0), V(0, 0, 1), 2.5), False)
sketch4.addGeometry(Part.Circle(V(69, -25, 0), V(0, 0, 1), 2.5), False)
sketch4.addGeometry(Part.Circle(V(161, -25, 0), V(0, 0, 1), 2.5), False)
sketch4.addGeometry(Part.Circle(V(161, 33, 0), V(0, 0, 1), 2.5), False)
sketch4.addGeometry(Part.Circle(V(69, 33, 0), V(0, 0, 1), 2.5), False)
sketch4.addConstraint(Sketcher.Constraint("Equal", 0, 1))
sketch4.addConstraint(Sketcher.Constraint("Equal", 1, 2))
sketch4.addConstraint(Sketcher.Constraint("Equal", 2, 3))
sketch4.addConstraint(Sketcher.Constraint("Equal", 3, 4))
sketch4.addConstraint(Sketcher.Constraint("Equal", 4, 5))
sketch4.addConstraint(Sketcher.Constraint("Equal", 5, 6))
sketch4.addConstraint(Sketcher.Constraint("Equal", 6, 7))
sketch4.addConstraint(Sketcher.Constraint("Symmetric", 3, 3, 4, 3, -2))
sketch4.addConstraint(Sketcher.Constraint("Symmetric", 2, 3, 5, 3, -2))
sketch4.addConstraint(Sketcher.Constraint("Symmetric", 1, 3, 6, 3, -2))
sketch4.addConstraint(Sketcher.Constraint("Symmetric", 0, 3, 7, 3, -2))
sketch4.addConstraint(Sketcher.Constraint("Horizontal", 0, 3, 1, 3))
sketch4.addConstraint(Sketcher.Constraint("Horizontal", 2, 3, 3, 3))
sketch4.addConstraint(Sketcher.Constraint("Vertical", 1, 3, 2, 3))
sketch4.addConstraint(Sketcher.Constraint("Vertical", 0, 3, 3, 3))
sketch4.addConstraint(Sketcher.Constraint("Diameter", 0, Q("5 mm")))
sketch4.addConstraint(Sketcher.Constraint("DistanceX", 0, 3, -1, 1, Q("69 mm")))
sketch4.addConstraint(Sketcher.Constraint("DistanceY", -1, 1, 0, 3, Q("33 mm")))
sketch4.addConstraint(Sketcher.Constraint("DistanceX", 1, 3, -1, 1, Q("161 mm")))
sketch4.addConstraint(Sketcher.Constraint("DistanceY", 2, 3, -1, 1, Q("25 mm")))
pocket3 = body.newObject("PartDesign::Pocket", "Pocket002")
pocket3.Profile = sketch4
pocket3.Length = 10
pocket3.Reversed = True

doc.recompute()
